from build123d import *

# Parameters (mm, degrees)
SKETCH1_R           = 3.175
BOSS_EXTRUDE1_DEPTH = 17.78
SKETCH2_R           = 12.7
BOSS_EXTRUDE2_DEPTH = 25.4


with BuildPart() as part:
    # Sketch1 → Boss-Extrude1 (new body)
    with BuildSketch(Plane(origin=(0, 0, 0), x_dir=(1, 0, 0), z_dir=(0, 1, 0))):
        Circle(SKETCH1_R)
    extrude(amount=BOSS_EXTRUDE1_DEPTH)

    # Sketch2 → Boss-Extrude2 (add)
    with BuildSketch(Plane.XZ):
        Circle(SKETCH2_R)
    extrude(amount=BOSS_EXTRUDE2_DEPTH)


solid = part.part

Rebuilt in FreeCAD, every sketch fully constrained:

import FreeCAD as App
import Part
import Sketcher
Q = App.Units.Quantity

doc = App.newDocument("Part")
body = doc.addObject("PartDesign::Body", "Body")

sketch1 = body.newObject("Sketcher::SketchObject", "Sketch")
sketch1.AttachmentSupport = (doc.getObject("XZ_Plane"), [""])
sketch1.MapMode = "FlatFace"
sketch1.addGeometry(Part.Circle(App.Vector(0, 0, 0), App.Vector(0, 0, 1), 3.2), False)
sketch1.addConstraint([
    Sketcher.Constraint("Coincident", 0, 3, -1, 1),
    Sketcher.Constraint("Diameter", 0, Q("0.25 in")),
])
pad1 = body.newObject("PartDesign::Pad", "Pad")
pad1.Profile = sketch1
pad1.Length = Q("0.7 in")
pad1.Reversed = True

sketch2 = body.newObject("Sketcher::SketchObject", "Sketch001")
sketch2.AttachmentSupport = (doc.getObject("XZ_Plane"), [""])
sketch2.MapMode = "FlatFace"
sketch2.addGeometry(Part.Circle(App.Vector(0, 0, 0), App.Vector(0, 0, 1), 13), False)
sketch2.addConstraint([
    Sketcher.Constraint("Coincident", 0, 3, -1, 1),
    Sketcher.Constraint("Diameter", 0, Q("1 in")),
])
pad2 = body.newObject("PartDesign::Pad", "Pad001")
pad2.Profile = sketch2
pad2.Length = Q("1 in")

doc.recompute()
